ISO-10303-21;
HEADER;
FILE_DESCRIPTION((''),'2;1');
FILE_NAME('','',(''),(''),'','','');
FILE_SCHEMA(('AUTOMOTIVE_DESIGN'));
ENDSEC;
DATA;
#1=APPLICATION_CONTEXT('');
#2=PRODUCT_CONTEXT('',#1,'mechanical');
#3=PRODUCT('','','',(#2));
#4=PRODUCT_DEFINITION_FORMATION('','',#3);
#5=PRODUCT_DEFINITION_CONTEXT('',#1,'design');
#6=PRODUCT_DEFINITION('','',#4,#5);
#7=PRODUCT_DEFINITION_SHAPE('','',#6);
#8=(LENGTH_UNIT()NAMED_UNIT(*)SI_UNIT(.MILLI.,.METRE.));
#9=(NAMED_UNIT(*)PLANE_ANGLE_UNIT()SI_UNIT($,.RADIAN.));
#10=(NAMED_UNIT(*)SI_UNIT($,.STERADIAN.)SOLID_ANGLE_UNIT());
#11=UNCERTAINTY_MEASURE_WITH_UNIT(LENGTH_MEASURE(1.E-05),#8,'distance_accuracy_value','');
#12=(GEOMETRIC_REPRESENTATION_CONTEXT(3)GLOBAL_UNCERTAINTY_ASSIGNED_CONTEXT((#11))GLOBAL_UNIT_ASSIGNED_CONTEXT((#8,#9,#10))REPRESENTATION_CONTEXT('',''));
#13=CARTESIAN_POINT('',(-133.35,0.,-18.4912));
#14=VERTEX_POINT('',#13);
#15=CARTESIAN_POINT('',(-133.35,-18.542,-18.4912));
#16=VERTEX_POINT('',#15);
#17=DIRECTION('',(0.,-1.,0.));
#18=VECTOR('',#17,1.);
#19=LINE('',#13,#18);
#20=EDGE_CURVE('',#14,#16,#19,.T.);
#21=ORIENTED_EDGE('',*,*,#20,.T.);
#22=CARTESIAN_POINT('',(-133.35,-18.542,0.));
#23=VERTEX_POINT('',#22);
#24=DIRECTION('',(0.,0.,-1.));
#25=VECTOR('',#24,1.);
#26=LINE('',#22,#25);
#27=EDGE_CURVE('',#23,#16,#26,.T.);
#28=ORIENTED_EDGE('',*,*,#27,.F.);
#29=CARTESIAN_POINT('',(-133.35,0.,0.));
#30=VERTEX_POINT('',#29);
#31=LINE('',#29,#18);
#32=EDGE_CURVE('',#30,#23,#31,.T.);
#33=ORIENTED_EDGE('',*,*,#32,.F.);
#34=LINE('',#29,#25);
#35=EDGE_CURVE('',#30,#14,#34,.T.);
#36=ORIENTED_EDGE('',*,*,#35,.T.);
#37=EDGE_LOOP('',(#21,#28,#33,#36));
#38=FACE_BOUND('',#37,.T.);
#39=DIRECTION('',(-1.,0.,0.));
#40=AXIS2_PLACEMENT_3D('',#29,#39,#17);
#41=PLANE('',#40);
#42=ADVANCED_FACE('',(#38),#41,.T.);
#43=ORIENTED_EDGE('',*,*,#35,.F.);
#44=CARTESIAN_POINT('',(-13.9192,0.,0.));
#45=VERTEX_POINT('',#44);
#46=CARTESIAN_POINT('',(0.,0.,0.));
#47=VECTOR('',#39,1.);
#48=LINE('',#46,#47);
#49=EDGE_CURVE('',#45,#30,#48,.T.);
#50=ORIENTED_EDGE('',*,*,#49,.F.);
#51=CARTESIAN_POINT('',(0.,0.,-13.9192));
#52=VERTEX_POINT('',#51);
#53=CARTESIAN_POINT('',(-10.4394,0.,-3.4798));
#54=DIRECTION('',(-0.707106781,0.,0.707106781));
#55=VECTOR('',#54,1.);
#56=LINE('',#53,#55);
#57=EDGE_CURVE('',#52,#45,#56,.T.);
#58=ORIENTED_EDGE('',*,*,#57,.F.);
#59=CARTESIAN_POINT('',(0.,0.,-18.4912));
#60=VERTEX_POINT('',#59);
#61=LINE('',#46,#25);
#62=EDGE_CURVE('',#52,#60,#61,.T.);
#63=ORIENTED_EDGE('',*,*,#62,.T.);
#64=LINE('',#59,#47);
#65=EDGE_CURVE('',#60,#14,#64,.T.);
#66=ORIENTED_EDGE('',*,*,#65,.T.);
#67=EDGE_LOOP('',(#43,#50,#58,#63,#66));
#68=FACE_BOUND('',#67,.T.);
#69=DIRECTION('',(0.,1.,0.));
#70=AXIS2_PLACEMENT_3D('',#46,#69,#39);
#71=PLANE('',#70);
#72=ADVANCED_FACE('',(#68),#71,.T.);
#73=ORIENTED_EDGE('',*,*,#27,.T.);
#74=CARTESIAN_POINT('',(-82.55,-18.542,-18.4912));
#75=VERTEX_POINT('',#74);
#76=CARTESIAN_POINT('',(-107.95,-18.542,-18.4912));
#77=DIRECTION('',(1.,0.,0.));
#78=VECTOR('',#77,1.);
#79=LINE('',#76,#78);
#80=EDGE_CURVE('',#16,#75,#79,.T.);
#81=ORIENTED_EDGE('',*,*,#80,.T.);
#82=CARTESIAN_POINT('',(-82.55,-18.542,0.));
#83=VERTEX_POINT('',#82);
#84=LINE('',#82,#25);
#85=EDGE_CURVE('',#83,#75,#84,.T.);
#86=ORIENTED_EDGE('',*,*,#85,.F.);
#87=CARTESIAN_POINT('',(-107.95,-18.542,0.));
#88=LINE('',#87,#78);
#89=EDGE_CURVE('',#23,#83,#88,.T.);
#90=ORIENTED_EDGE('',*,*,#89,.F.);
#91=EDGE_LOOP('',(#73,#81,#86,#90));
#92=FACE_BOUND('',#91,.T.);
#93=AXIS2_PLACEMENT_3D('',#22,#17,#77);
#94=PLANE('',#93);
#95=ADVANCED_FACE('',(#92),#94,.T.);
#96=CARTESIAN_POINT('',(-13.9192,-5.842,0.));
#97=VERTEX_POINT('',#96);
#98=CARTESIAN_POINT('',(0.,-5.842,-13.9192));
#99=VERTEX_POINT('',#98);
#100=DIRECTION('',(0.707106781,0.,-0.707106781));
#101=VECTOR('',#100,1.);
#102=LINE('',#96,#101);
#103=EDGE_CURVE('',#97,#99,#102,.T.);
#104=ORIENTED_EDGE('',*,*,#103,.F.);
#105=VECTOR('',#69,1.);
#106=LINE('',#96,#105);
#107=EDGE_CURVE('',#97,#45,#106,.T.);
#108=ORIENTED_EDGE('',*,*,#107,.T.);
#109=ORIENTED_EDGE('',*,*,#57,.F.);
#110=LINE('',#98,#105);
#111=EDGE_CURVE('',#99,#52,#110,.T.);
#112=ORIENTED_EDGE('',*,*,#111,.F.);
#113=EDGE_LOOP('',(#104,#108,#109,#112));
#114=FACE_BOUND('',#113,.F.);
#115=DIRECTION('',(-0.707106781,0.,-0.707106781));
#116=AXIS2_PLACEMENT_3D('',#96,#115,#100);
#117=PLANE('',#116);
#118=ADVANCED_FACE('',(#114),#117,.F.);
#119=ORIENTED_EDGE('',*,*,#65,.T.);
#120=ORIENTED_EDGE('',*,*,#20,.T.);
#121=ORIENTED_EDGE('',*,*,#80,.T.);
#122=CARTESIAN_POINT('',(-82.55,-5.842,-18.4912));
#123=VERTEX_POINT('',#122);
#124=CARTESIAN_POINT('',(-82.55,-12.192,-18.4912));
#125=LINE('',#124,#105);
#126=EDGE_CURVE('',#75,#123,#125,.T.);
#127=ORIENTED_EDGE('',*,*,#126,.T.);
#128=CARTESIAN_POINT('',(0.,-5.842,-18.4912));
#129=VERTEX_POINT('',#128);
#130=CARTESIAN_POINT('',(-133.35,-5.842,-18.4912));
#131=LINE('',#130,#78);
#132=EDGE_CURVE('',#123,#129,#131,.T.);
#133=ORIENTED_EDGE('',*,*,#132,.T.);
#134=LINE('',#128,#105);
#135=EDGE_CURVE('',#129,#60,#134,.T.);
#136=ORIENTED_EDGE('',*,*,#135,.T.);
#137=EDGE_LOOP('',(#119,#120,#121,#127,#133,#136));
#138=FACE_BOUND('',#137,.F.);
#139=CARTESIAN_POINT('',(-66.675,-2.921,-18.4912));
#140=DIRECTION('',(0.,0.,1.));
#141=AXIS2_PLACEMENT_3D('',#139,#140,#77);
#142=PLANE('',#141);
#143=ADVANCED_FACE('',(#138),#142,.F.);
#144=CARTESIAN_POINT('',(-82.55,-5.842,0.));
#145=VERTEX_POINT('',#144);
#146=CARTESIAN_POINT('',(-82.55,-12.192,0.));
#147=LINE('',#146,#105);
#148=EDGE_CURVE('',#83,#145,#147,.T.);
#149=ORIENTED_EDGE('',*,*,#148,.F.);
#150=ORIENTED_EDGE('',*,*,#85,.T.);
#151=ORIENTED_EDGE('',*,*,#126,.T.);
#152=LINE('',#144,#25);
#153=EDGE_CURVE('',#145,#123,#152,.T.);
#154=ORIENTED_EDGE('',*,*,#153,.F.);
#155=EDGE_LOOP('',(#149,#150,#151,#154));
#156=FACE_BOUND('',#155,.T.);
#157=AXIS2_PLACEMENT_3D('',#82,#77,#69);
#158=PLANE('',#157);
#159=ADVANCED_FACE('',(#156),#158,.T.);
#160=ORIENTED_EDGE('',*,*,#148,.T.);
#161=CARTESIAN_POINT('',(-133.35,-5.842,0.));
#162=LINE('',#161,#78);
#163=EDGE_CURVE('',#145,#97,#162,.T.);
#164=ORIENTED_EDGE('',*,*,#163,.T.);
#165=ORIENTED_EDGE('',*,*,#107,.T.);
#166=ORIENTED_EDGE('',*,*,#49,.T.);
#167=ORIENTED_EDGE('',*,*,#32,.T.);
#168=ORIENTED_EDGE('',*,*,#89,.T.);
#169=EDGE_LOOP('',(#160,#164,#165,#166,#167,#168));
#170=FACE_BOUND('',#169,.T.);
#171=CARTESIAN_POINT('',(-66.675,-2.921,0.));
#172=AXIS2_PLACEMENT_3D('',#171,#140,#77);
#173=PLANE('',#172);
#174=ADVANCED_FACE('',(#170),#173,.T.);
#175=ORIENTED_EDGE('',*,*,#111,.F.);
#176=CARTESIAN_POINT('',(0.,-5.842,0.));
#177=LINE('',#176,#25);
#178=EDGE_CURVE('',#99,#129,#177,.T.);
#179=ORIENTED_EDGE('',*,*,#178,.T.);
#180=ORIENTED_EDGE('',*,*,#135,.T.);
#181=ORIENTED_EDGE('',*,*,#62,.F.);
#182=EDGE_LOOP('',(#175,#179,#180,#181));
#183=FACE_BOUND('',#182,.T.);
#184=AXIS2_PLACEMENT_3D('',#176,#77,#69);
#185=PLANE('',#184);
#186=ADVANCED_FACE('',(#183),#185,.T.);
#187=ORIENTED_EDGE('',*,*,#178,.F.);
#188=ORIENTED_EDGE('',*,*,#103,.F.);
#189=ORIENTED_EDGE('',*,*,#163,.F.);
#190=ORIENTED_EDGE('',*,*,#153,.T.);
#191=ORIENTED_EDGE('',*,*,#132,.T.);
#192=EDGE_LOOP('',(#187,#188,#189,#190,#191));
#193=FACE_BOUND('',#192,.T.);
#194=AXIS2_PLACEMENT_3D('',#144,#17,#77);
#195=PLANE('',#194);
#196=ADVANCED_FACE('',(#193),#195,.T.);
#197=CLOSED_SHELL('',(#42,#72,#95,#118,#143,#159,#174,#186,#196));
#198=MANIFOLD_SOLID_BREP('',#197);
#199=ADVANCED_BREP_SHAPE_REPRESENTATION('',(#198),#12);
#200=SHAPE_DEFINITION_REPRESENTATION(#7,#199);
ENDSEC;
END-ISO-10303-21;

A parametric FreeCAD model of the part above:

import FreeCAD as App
import Part
import Sketcher
from FreeCAD import Vector
Q = App.Units.Quantity


def add_polygon(sketch, points):
    """Adds a closed chain of lines whose ends are joined by coincident constraints."""
    first, n = sketch.GeometryCount, len(points)
    for a, b in zip(points, points[1:] + points[:1]):
        sketch.addGeometry(Part.LineSegment(App.Vector(*a, 0), App.Vector(*b, 0)), False)
    for i in range(n):
        sketch.addConstraint(Sketcher.Constraint("Coincident", first + i, 2, first + (i + 1) % n, 1))

doc = App.newDocument("Part")
body = doc.addObject("PartDesign::Body", "Body")

sketch1 = body.newObject("Sketcher::SketchObject", "Sketch")
sketch1.AttachmentSupport = (doc.getObject("XY_Plane"), [""])
sketch1.MapMode = "FlatFace"
add_polygon(sketch1, [(0, -6), (0, 0), (-133, 0), (-133, -19), (-83, -19), (-83, -6)])
sketch1.addConstraint(Sketcher.Constraint("Vertical", 0))
sketch1.addConstraint(Sketcher.Constraint("Horizontal", 1))
sketch1.addConstraint(Sketcher.Constraint("Vertical", 2))
sketch1.addConstraint(Sketcher.Constraint("Horizontal", 3))
sketch1.addConstraint(Sketcher.Constraint("Vertical", 4))
sketch1.addConstraint(Sketcher.Constraint("Horizontal", 5))
sketch1.addConstraint(Sketcher.Constraint("Coincident", 0, 2, -1, 1))
sketch1.addConstraint(Sketcher.Constraint("DistanceX", 3, 1, 3, 2, Q("2 in")))
sketch1.addConstraint(Sketcher.Constraint("DistanceY", 4, 1, 4, 2, Q("0.5 in")))
sketch1.addConstraint(Sketcher.Constraint("DistanceX", 1, 2, 1, 1, Q("5.25 in")))
sketch1.addConstraint(Sketcher.Constraint("DistanceY", 0, 1, 0, 2, Q("0.23 in")))
pad1 = body.newObject("PartDesign::Pad", "Pad")
pad1.Profile = sketch1
pad1.Length = Q("0.728 in")
pad1.Reversed = True

sketch2 = body.newObject("Sketcher::SketchObject", "Sketch001")
sketch2.AttachmentSupport = (doc.getObject("XZ_Plane"), [""])
sketch2.MapMode = "FlatFace"
sketch2.AttachmentOffset = App.Placement(Vector(0, 0, 0.23 * 25.4), App.Rotation())
add_polygon(sketch2, [(0, -14), (0, 0), (-14, 0)])
sketch2.addConstraint(Sketcher.Constraint("Vertical", 0))
sketch2.addConstraint(Sketcher.Constraint("Horizontal", 1))
sketch2.addConstraint(Sketcher.Constraint("Coincident", 0, 2, -1, 1))
sketch2.addConstraint(Sketcher.Constraint("Equal", 1, 0))
sketch2.addConstraint(Sketcher.Constraint("DistanceX", 1, 2, 1, 1, Q("0.548 in")))
pocket1 = body.newObject("PartDesign::Pocket", "Pocket")
pocket1.Profile = sketch2
pocket1.Type = "ThroughAll"

doc.recompute()
